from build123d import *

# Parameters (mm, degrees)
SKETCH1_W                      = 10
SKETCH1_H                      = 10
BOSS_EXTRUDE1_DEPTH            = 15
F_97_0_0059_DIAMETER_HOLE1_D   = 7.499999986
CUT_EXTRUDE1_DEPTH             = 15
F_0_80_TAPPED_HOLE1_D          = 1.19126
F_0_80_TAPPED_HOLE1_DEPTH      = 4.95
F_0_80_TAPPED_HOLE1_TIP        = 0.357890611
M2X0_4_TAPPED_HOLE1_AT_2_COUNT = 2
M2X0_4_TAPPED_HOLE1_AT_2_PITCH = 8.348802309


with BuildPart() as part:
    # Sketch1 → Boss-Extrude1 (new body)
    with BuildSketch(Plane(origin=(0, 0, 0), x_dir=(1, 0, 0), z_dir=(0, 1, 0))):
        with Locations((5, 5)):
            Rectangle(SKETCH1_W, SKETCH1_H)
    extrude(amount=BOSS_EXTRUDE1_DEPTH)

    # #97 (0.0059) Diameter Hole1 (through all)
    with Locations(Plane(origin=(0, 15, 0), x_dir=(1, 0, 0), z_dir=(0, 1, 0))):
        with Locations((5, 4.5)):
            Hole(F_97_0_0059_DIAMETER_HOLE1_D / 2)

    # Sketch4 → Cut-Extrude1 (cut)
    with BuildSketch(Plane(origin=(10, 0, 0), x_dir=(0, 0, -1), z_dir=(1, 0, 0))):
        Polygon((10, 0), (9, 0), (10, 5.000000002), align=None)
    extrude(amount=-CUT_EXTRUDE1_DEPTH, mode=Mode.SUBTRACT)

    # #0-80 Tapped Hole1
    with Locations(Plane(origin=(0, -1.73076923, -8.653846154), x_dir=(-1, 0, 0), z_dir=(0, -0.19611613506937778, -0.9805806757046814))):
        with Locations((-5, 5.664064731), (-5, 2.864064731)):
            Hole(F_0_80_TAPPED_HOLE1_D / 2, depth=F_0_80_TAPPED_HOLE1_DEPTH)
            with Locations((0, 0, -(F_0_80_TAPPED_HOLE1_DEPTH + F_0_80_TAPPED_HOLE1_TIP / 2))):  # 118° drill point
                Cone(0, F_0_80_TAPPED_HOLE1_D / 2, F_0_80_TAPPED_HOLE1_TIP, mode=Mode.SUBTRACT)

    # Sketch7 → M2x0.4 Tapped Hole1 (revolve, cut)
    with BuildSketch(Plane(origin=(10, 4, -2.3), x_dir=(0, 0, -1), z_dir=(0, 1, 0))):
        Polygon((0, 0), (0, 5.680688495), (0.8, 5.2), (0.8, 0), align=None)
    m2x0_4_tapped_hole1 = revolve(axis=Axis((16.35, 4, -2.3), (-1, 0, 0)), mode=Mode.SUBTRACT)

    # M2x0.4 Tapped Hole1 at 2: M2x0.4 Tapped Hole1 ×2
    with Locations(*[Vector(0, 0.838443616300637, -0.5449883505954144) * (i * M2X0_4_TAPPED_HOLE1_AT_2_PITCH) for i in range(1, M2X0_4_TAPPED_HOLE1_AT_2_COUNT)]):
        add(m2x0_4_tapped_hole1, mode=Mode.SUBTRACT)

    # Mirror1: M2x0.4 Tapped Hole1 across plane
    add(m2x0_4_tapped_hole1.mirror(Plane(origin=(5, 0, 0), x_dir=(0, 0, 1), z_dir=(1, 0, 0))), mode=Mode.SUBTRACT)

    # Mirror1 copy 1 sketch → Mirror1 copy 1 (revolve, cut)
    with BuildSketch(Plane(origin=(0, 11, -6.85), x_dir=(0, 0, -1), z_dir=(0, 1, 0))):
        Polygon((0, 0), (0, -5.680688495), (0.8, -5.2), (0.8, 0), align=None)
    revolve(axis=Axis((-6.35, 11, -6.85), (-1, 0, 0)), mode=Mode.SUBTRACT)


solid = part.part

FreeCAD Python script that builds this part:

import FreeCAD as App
import Part
import Sketcher
from FreeCAD import Vector
Q = App.Units.Quantity

doc = App.newDocument("Part")
body = doc.addObject("PartDesign::Body", "Body")

sketch1 = body.newObject("Sketcher::SketchObject", "Sketch")
sketch1.AttachmentSupport = (doc.getObject("XZ_Plane"), [""])
sketch1.MapMode = "FlatFace"
sketch1.addGeometry([
    Part.LineSegment(Vector(0, -10, 0), Vector(0, 0, 0)),
    Part.LineSegment(Vector(0, 0, 0), Vector(10, 0, 0)),
    Part.LineSegment(Vector(10, 0, 0), Vector(10, -10, 0)),
    Part.LineSegment(Vector(10, -10, 0), Vector(0, -10, 0)),
], False)
sketch1.addConstraint([
    Sketcher.Constraint("Coincident", 0, 2, 1, 1),
    Sketcher.Constraint("Coincident", 1, 2, 2, 1),
    Sketcher.Constraint("Coincident", 2, 2, 3, 1),
    Sketcher.Constraint("Coincident", 3, 2, 0, 1),
    Sketcher.Constraint("Vertical", 0),
    Sketcher.Constraint("Horizontal", 1),
    Sketcher.Constraint("Vertical", 2),
    Sketcher.Constraint("Horizontal", 3),
    Sketcher.Constraint("Coincident", 0, 2, -1, 1),
    Sketcher.Constraint("Equal", 3, 0),
    Sketcher.Constraint("DistanceX", 1, 1, 1, 2, Q("10 mm")),
])
pad1 = body.newObject("PartDesign::Pad", "Pad")
pad1.Profile = sketch1
pad1.Length = 15
pad1.Reversed = True

sketch2 = body.newObject("Sketcher::SketchObject", "Sketch001")
sketch2.AttachmentSupport = (doc.getObject("XZ_Plane"), [""])
sketch2.MapMode = "FlatFace"
sketch2.AttachmentOffset = App.Placement(Vector(0, 0, -15), App.Rotation())
sketch2.addGeometry(Part.Circle(Vector(5, -4.5, 0), Vector(0, 0, 1), 3.7), False)
sketch2.addConstraint([
    Sketcher.Constraint("Diameter", 0, Q("7.5 mm")),
    Sketcher.Constraint("DistanceX", -1, 1, 0, 3, Q("5 mm")),
    Sketcher.Constraint("DistanceY", 0, 3, -1, 1, Q("4.5 mm")),
])
doc.recompute()
hole = body.newObject("PartDesign::Hole", "Hole")
hole.Profile = sketch2
hole.ThreadType = "None"
hole.Diameter = 7.5
hole.DepthType = "ThroughAll"
hole.Reversed = True

sketch3 = body.newObject("Sketcher::SketchObject", "Sketch002")
sketch3.AttachmentSupport = (doc.getObject("YZ_Plane"), [""])
sketch3.MapMode = "FlatFace"
sketch3.AttachmentOffset = App.Placement(Vector(0, 0, 10), App.Rotation())
sketch3.addGeometry([
    Part.LineSegment(Vector(0, -9, 0), Vector(0, -10, 0)),
    Part.LineSegment(Vector(0, -10, 0), Vector(5, -10, 0)),
    Part.LineSegment(Vector(5, -10, 0), Vector(0, -9, 0)),
], False)
sketch3.addConstraint([
    Sketcher.Constraint("Coincident", 0, 2, 1, 1),
    Sketcher.Constraint("Coincident", 1, 2, 2, 1),
    Sketcher.Constraint("Coincident", 2, 2, 0, 1),
    Sketcher.Constraint("Vertical", 0),
    Sketcher.Constraint("Horizontal", 1),
    Sketcher.Constraint("PointOnObject", 0, 2, -2),
    Sketcher.Constraint("DistanceX", 1, 1, 1, 2, Q("5 mm")),
    Sketcher.Constraint("DistanceY", 0, 2, 0, 1, Q("1 mm")),
    Sketcher.Constraint("DistanceY", 0, 2, -1, 1, Q("10 mm")),
])
pocket1 = body.newObject("PartDesign::Pocket", "Pocket")
pocket1.Profile = sketch3
pocket1.Length = 15

sketch4 = body.newObject("Sketcher::SketchObject", "Sketch003")
sketch4.Placement = App.Placement(Vector(0, -1.730769, -8.653846), App.Rotation(Vector(-1, 0, 0), Vector(0, 0.980580676, -0.196116135), Vector(0, -0.196116135, -0.980580676), "ZXY"))
sketch4.addGeometry([
    Part.Circle(Vector(-5, 5.7, 0), Vector(0, 0, 1), 0.6),
    Part.Circle(Vector(-5, 2.9, 0), Vector(0, 0, 1), 0.6),
], False)
sketch4.addConstraint([
    Sketcher.Constraint("Equal", 0, 1),
    Sketcher.Constraint("Vertical", 0, 3, 1, 3),
    Sketcher.Constraint("DistanceX", 0, 3, -1, 1, Q("5 mm")),
    Sketcher.Constraint("DistanceY", 1, 3, 0, 3, Q("2.8 mm")),
    Sketcher.Constraint("Diameter", 0, Q("1.19126 mm")),
    Sketcher.Constraint("DistanceY", -1, 1, 0, 3, Q("5.664065 mm")),
])
doc.recompute()
hole2 = body.newObject("PartDesign::Hole", "Hole001")
hole2.Profile = sketch4
hole2.ThreadType = "None"
hole2.Diameter = 1.19126
hole2.DepthType = "Dimension"
hole2.Depth = 4.95
hole2.DrillPoint = "Angled"
hole2.DrillPointAngle = 118

sketch5 = body.newObject("Sketcher::SketchObject", "Sketch004")
sketch5.AttachmentSupport = (doc.getObject("XZ_Plane"), [""])
sketch5.MapMode = "FlatFace"
sketch5.AttachmentOffset = App.Placement(Vector(0, 0, -4), App.Rotation())
sketch5.addGeometry([
    Part.LineSegment(Vector(4.3, -2.3, 0), Vector(10, -2.3, 0)),
    Part.LineSegment(Vector(10, -2.3, 0), Vector(10, -3.1, 0)),
    Part.LineSegment(Vector(10, -3.1, 0), Vector(4.8, -3.1, 0)),
    Part.LineSegment(Vector(4.8, -3.1, 0), Vector(4.3, -2.3, 0)),
], False)
sketch5.addGeometry(Part.LineSegment(Vector(10, -2.3, 0), Vector(4.3, -2.3, 0)), True)
sketch5.addConstraint([
    Sketcher.Constraint("Coincident", 0, 2, 1, 1),
    Sketcher.Constraint("Coincident", 1, 2, 2, 1),
    Sketcher.Constraint("Coincident", 2, 2, 3, 1),
    Sketcher.Constraint("Coincident", 3, 2, 0, 1),
    Sketcher.Constraint("Horizontal", 0),
    Sketcher.Constraint("Vertical", 1),
    Sketcher.Constraint("Horizontal", 2),
    Sketcher.Constraint("Horizontal", 4),
    Sketcher.Constraint("Coincident", 4, 1, 0, 2),
    Sketcher.Constraint("Equal", 0, 4),
    Sketcher.Constraint("Angle", 3, Q("121 deg")),
    Sketcher.Constraint("DistanceX", 2, 2, 2, 1, Q("5.2 mm")),
    Sketcher.Constraint("DistanceY", 1, 2, 1, 1, Q("0.8 mm")),
    Sketcher.Constraint("DistanceX", -1, 1, 0, 2, Q("10 mm")),
    Sketcher.Constraint("DistanceY", 0, 2, -1, 1, Q("2.3 mm")),
])
groove = body.newObject("PartDesign::Groove", "Groove")
groove.Profile = sketch5
groove.ReferenceAxis = (sketch5, ["Axis0"])
groove.Angle = 360
doc.recompute()

datumline = body.newObject("PartDesign::Line", "DatumLine")
datumline.Placement = App.Placement(Vector(0, 0, 0), App.Rotation(Vector(0, 0, 1), Vector(0, 0.838443616, -0.544988351)))
linearpattern = body.newObject("PartDesign::LinearPattern", "LinearPattern")
linearpattern.Originals = [groove]
linearpattern.Direction = (datumline, [""])
linearpattern.Mode = "offset"
linearpattern.Offset = 8.348802
linearpattern.Occurrences = 2
body.Tip = linearpattern
doc.recompute()

datumplane = body.newObject("PartDesign::Plane", "DatumPlane")
datumplane.AttachmentSupport = (doc.getObject("YZ_Plane"), [""])
datumplane.MapMode = "FlatFace"
datumplane.AttachmentOffset = App.Placement(Vector(0, 0, 5), App.Rotation())
mirrored = body.newObject("PartDesign::Mirrored", "Mirrored")
mirrored.Originals = [groove]
mirrored.MirrorPlane = (datumplane, [""])
body.Tip = mirrored

sketch6 = body.newObject("Sketcher::SketchObject", "Sketch005")
sketch6.AttachmentSupport = (doc.getObject("XZ_Plane"), [""])
sketch6.MapMode = "FlatFace"
sketch6.AttachmentOffset = App.Placement(Vector(0, 0, -11), App.Rotation())
sketch6.addGeometry([
    Part.LineSegment(Vector(0, -6.8, 0), Vector(5.7, -6.8, 0)),
    Part.LineSegment(Vector(5.7, -6.8, 0), Vector(5.2, -7.7, 0)),
    Part.LineSegment(Vector(5.2, -7.7, 0), Vector(0, -7.7, 0)),
    Part.LineSegment(Vector(0, -7.7, 0), Vector(0, -6.8, 0)),
], False)
sketch6.addGeometry(Part.LineSegment(Vector(5.7, -6.8, 0), Vector(0, -6.8, 0)), True)
sketch6.addConstraint([
    Sketcher.Constraint("Coincident", 0, 2, 1, 1),
    Sketcher.Constraint("Coincident", 1, 2, 2, 1),
    Sketcher.Constraint("Coincident", 2, 2, 3, 1),
    Sketcher.Constraint("Coincident", 3, 2, 0, 1),
    Sketcher.Constraint("Horizontal", 0),
    Sketcher.Constraint("Horizontal", 2),
    Sketcher.Constraint("Vertical", 3),
    Sketcher.Constraint("Horizontal", 4),
    Sketcher.Constraint("Coincident", 4, 1, 0, 2),
    Sketcher.Constraint("PointOnObject", 2, 2, -2),
    Sketcher.Constraint("PointOnObject", 4, 2, -2),
    Sketcher.Constraint("Angle", 1, Q("-121 deg")),
    Sketcher.Constraint("DistanceX", 2, 2, 2, 1, Q("5.2 mm")),
    Sketcher.Constraint("DistanceY", 3, 1, 3, 2, Q("0.8 mm")),
    Sketcher.Constraint("DistanceY", 0, 2, -1, 1, Q("6.85 mm")),
])
groove2 = body.newObject("PartDesign::Groove", "Groove001")
groove2.Profile = sketch6
groove2.ReferenceAxis = (sketch6, ["Axis0"])
groove2.Angle = 360

doc.recompute()
